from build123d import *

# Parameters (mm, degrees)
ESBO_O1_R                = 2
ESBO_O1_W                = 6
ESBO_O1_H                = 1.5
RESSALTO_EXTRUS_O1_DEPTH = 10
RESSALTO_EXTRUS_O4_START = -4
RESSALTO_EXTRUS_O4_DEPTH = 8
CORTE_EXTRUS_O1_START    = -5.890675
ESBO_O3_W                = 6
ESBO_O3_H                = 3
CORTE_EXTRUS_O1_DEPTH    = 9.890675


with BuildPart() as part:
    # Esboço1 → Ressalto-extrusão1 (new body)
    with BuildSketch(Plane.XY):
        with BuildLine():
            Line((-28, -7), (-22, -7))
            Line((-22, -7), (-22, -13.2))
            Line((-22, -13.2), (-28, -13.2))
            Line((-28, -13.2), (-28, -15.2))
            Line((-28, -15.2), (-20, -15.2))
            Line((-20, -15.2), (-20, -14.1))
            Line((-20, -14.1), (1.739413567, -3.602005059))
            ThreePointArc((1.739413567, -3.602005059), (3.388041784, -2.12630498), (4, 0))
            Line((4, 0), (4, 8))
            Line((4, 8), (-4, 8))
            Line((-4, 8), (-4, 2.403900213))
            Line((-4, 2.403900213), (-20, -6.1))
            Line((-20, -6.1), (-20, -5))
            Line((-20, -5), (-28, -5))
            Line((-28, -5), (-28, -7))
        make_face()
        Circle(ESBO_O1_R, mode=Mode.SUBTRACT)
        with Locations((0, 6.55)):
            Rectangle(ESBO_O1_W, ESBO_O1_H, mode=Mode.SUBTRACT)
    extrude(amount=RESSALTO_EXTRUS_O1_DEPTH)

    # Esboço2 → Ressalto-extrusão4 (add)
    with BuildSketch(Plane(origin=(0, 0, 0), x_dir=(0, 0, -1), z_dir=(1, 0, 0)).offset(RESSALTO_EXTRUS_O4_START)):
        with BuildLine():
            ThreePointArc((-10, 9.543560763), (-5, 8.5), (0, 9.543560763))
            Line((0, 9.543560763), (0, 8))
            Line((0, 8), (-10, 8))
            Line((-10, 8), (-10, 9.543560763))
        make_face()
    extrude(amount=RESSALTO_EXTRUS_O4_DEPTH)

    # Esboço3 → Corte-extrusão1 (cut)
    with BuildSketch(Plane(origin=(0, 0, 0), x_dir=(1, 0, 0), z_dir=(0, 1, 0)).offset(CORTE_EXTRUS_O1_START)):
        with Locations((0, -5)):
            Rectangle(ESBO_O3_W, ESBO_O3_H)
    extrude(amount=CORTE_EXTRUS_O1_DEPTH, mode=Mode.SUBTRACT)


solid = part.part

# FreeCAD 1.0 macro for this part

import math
import FreeCAD as App
import Part
import Sketcher

doc = App.newDocument("Part")
params = doc.addObject("Spreadsheet::Sheet", "Params")
for row, (alias, value) in enumerate([
    ("sketch1_diameter", "4 mm"),
    ("sketch1_radius", "4 mm"),
    ("sketch1_width", "6 mm"),
    ("sketch1_width2", "8 mm"),
    ("sketch1_height", "2 mm"),
    ("pad1_length", "10 mm"),
    ("sketch2_radius", "12.5 mm"),
    ("sketch2_height", "10 mm"),
    ("pad2_length", "8 mm"),
    ("sketch3_width", "6 mm"),
    ("sketch3_height", "3 mm"),
    ("pocket1_length", "9.890675 mm"),
], start=1):
    params.set(f"A{row}", alias)
    params.set(f"B{row}", "=" + value)
    params.setAlias(f"B{row}", alias)

body = doc.addObject("PartDesign::Body", "Body")

# Sketch on XY plane
sketch1 = body.newObject("Sketcher::SketchObject", "Sketch")
sketch1.AttachmentSupport = (doc.getObject("XY_Plane"), [""])
sketch1.MapMode = "FlatFace"
sketch1.addGeometry([
    Part.LineSegment(App.Vector(-28, -7, 0), App.Vector(-22, -7, 0)),  # 0
    Part.LineSegment(App.Vector(-22, -7, 0), App.Vector(-22, -13.2, 0)),  # 1
    Part.LineSegment(App.Vector(-22, -13.2, 0), App.Vector(-28, -13.2, 0)),  # 2
    Part.LineSegment(App.Vector(-28, -13.2, 0), App.Vector(-28, -15.2, 0)),  # 3
    Part.LineSegment(App.Vector(-28, -15.2, 0), App.Vector(-20, -15.2, 0)),  # 4
    Part.LineSegment(App.Vector(-20, -15.2, 0), App.Vector(-20, -14.1, 0)),  # 5
    Part.LineSegment(App.Vector(-20, -14.1, 0), App.Vector(1.739414, -3.602005, 0)),  # 6
    Part.ArcOfCircle(Part.Circle(App.Vector(0, 0, 0), App.Vector(0, 0, 1), 4), math.radians(-64.224035), math.radians(0)),  # 7
    Part.LineSegment(App.Vector(4, 0, 0), App.Vector(4, 8, 0)),  # 8
    Part.LineSegment(App.Vector(4, 8, 0), App.Vector(-4, 8, 0)),  # 9
    Part.LineSegment(App.Vector(-4, 8, 0), App.Vector(-4, 2.4039, 0)),  # 10
    Part.LineSegment(App.Vector(-4, 2.4039, 0), App.Vector(-20, -6.1, 0)),  # 11
    Part.LineSegment(App.Vector(-20, -6.1, 0), App.Vector(-20, -5, 0)),  # 12
    Part.LineSegment(App.Vector(-20, -5, 0), App.Vector(-28, -5, 0)),  # 13
    Part.LineSegment(App.Vector(-28, -5, 0), App.Vector(-28, -7, 0)),  # 14
    Part.Circle(App.Vector(0, 0, 0), App.Vector(0, 0, 1), 2),  # 15
    Part.LineSegment(App.Vector(3, 5.8, 0), App.Vector(-3, 5.8, 0)),  # 16
    Part.LineSegment(App.Vector(-3, 5.8, 0), App.Vector(-3, 7.3, 0)),  # 17
    Part.LineSegment(App.Vector(-3, 7.3, 0), App.Vector(3, 7.3, 0)),  # 18
    Part.LineSegment(App.Vector(3, 7.3, 0), App.Vector(3, 5.8, 0)),  # 19
], False)
sketch1.addConstraint([
    Sketcher.Constraint("Coincident", 0, 2, 1, 1),
    Sketcher.Constraint("Coincident", 1, 2, 2, 1),
    Sketcher.Constraint("Coincident", 2, 2, 3, 1),
    Sketcher.Constraint("Coincident", 3, 2, 4, 1),
    Sketcher.Constraint("Coincident", 4, 2, 5, 1),
    Sketcher.Constraint("Coincident", 5, 2, 6, 1),
    Sketcher.Constraint("Tangent", 6, 2, 7, 1),
    Sketcher.Constraint("Tangent", 7, 2, 8, 1),
    Sketcher.Constraint("Coincident", 8, 2, 9, 1),
    Sketcher.Constraint("Coincident", 9, 2, 10, 1),
    Sketcher.Constraint("Coincident", 10, 2, 11, 1),
    Sketcher.Constraint("Coincident", 11, 2, 12, 1),
    Sketcher.Constraint("Coincident", 12, 2, 13, 1),
    Sketcher.Constraint("Coincident", 13, 2, 14, 1),
    Sketcher.Constraint("Coincident", 14, 2, 0, 1),
    Sketcher.Constraint("Coincident", 16, 2, 17, 1),
    Sketcher.Constraint("Coincident", 17, 2, 18, 1),
    Sketcher.Constraint("Coincident", 18, 2, 19, 1),
    Sketcher.Constraint("Coincident", 19, 2, 16, 1),
    Sketcher.Constraint("Horizontal", 0),
    Sketcher.Constraint("Vertical", 1),
    Sketcher.Constraint("Horizontal", 2),
    Sketcher.Constraint("Vertical", 3),
    Sketcher.Constraint("Horizontal", 4),
    Sketcher.Constraint("Vertical", 5),
    Sketcher.Constraint("Vertical", 8),
    Sketcher.Constraint("Horizontal", 9),
    Sketcher.Constraint("Vertical", 10),
    Sketcher.Constraint("Vertical", 12),
    Sketcher.Constraint("Horizontal", 13),
    Sketcher.Constraint("Vertical", 14),
    Sketcher.Constraint("Horizontal", 16),
    Sketcher.Constraint("Vertical", 17),
    Sketcher.Constraint("Horizontal", 18),
    Sketcher.Constraint("Vertical", 19),
    Sketcher.Constraint("Coincident", 7, 3, -1, 1),
    Sketcher.Constraint("Coincident", 15, 3, -1, 1),
    Sketcher.Constraint("Vertical", 5, 2, 11, 2),
    Sketcher.Constraint("Vertical", 3, 2, 13, 2),
    Sketcher.Constraint("Equal", 4, 9),
    Sketcher.Constraint("Equal", 2, 16),
    Sketcher.Constraint("Equal", 13, 8),
    Sketcher.Constraint("Equal", 5, 12),
    Sketcher.Constraint("Equal", 3, 14),
    Sketcher.Constraint("Diameter", 15, 4.0),
    Sketcher.Constraint("Radius", 7, 4.0),
    Sketcher.Constraint("DistanceX", 0, 1, 0, 2, 6.0),
    Sketcher.Constraint("DistanceX", 4, 1, 4, 2, 8.0),
    Sketcher.Constraint("DistanceY", 3, 2, 3, 1, 2.0),
    Sketcher.Constraint("DistanceY", 1, 2, 1, 1, 6.2),
    Sketcher.Constraint("DistanceY", 5, 1, 5, 2, 1.1),
    Sketcher.Constraint("DistanceY", 17, 1, 17, 2, 1.5),
    Sketcher.Constraint("DistanceX", 0, 2, -1, 1, 22.0),
    Sketcher.Constraint("DistanceY", 0, 2, -1, 1, 7.0),
    Sketcher.Constraint("DistanceX", 16, 2, -1, 1, 3.0),
    Sketcher.Constraint("DistanceY", -1, 1, 16, 2, 5.8),
    Sketcher.Constraint("DistanceY", 10, 2, 10, 1, 5.5961),
])
sketch1.setExpression("Constraints[44]", "Params.sketch1_diameter")
sketch1.setExpression("Constraints[45]", "Params.sketch1_radius")
sketch1.setExpression("Constraints[46]", "Params.sketch1_width")
sketch1.setExpression("Constraints[47]", "Params.sketch1_width2")
sketch1.setExpression("Constraints[48]", "Params.sketch1_height")
pad1 = body.newObject("PartDesign::Pad", "Pad")
pad1.Profile = sketch1
pad1.setExpression("Length", "Params.pad1_length")

# Sketch on YZ plane
sketch2 = body.newObject("Sketcher::SketchObject", "Sketch001")
sketch2.AttachmentSupport = (doc.getObject("YZ_Plane"), [""])
sketch2.MapMode = "FlatFace"
sketch2.AttachmentOffset = App.Placement(App.Vector(0, 0, -4), App.Rotation())
sketch2.addGeometry([
    Part.ArcOfCircle(Part.Circle(App.Vector(21, 5, 0), App.Vector(0, 0, 1), 12.5), math.radians(156.421822), math.radians(203.578178)),
    Part.LineSegment(App.Vector(9.543561, 10, 0), App.Vector(8, 10, 0)),
    Part.LineSegment(App.Vector(8, 10, 0), App.Vector(8, 0, 0)),
    Part.LineSegment(App.Vector(8, 0, 0), App.Vector(9.543561, 0, 0)),
], False)
sketch2.addConstraint([
    Sketcher.Constraint("Coincident", 0, 1, 1, 1),
    Sketcher.Constraint("Coincident", 1, 2, 2, 1),
    Sketcher.Constraint("Coincident", 2, 2, 3, 1),
    Sketcher.Constraint("Coincident", 3, 2, 0, 2),
    Sketcher.Constraint("Horizontal", 1),
    Sketcher.Constraint("Vertical", 2),
    Sketcher.Constraint("Horizontal", 3),
    Sketcher.Constraint("PointOnObject", 2, 2, -1),
    Sketcher.Constraint("Vertical", 0, 1, 3, 2),
    Sketcher.Constraint("Radius", 0, 12.5),
    Sketcher.Constraint("DistanceY", 2, 2, 2, 1, 10.0),
    Sketcher.Constraint("DistanceX", -1, 1, 0, 3, 21.0),
    Sketcher.Constraint("DistanceX", -1, 1, 1, 2, 8.0),
])
sketch2.setExpression("Constraints[9]", "Params.sketch2_radius")
sketch2.setExpression("Constraints[10]", "Params.sketch2_height")
pad2 = body.newObject("PartDesign::Pad", "Pad001")
pad2.Profile = sketch2
pad2.setExpression("Length", "Params.pad2_length")

# Sketch on XZ plane
sketch3 = body.newObject("Sketcher::SketchObject", "Sketch002")
sketch3.AttachmentSupport = (doc.getObject("XZ_Plane"), [""])
sketch3.MapMode = "FlatFace"
sketch3.AttachmentOffset = App.Placement(App.Vector(0, 0, 5.890675), App.Rotation())
sketch3.addGeometry([
    Part.LineSegment(App.Vector(-3, 3.5, 0), App.Vector(-3, 6.5, 0)),
    Part.LineSegment(App.Vector(-3, 6.5, 0), App.Vector(3, 6.5, 0)),
    Part.LineSegment(App.Vector(3, 6.5, 0), App.Vector(3, 3.5, 0)),
    Part.LineSegment(App.Vector(3, 3.5, 0), App.Vector(-3, 3.5, 0)),
], False)
sketch3.addConstraint([
    Sketcher.Constraint("Coincident", 0, 2, 1, 1),
    Sketcher.Constraint("Coincident", 1, 2, 2, 1),
    Sketcher.Constraint("Coincident", 2, 2, 3, 1),
    Sketcher.Constraint("Coincident", 3, 2, 0, 1),
    Sketcher.Constraint("Vertical", 0),
    Sketcher.Constraint("Horizontal", 1),
    Sketcher.Constraint("Vertical", 2),
    Sketcher.Constraint("Horizontal", 3),
    Sketcher.Constraint("DistanceX", 1, 1, 1, 2, 6.0),
    Sketcher.Constraint("DistanceY", 0, 1, 0, 2, 3.0),
    Sketcher.Constraint("DistanceX", 0, 2, -1, 1, 3.0),
    Sketcher.Constraint("DistanceY", -1, 1, 0, 2, 6.5),
])
sketch3.setExpression("Constraints[8]", "Params.sketch3_width")
sketch3.setExpression("Constraints[9]", "Params.sketch3_height")
pocket1 = body.newObject("PartDesign::Pocket", "Pocket")
pocket1.Profile = sketch3
pocket1.setExpression("Length", "Params.pocket1_length")

doc.recompute()
